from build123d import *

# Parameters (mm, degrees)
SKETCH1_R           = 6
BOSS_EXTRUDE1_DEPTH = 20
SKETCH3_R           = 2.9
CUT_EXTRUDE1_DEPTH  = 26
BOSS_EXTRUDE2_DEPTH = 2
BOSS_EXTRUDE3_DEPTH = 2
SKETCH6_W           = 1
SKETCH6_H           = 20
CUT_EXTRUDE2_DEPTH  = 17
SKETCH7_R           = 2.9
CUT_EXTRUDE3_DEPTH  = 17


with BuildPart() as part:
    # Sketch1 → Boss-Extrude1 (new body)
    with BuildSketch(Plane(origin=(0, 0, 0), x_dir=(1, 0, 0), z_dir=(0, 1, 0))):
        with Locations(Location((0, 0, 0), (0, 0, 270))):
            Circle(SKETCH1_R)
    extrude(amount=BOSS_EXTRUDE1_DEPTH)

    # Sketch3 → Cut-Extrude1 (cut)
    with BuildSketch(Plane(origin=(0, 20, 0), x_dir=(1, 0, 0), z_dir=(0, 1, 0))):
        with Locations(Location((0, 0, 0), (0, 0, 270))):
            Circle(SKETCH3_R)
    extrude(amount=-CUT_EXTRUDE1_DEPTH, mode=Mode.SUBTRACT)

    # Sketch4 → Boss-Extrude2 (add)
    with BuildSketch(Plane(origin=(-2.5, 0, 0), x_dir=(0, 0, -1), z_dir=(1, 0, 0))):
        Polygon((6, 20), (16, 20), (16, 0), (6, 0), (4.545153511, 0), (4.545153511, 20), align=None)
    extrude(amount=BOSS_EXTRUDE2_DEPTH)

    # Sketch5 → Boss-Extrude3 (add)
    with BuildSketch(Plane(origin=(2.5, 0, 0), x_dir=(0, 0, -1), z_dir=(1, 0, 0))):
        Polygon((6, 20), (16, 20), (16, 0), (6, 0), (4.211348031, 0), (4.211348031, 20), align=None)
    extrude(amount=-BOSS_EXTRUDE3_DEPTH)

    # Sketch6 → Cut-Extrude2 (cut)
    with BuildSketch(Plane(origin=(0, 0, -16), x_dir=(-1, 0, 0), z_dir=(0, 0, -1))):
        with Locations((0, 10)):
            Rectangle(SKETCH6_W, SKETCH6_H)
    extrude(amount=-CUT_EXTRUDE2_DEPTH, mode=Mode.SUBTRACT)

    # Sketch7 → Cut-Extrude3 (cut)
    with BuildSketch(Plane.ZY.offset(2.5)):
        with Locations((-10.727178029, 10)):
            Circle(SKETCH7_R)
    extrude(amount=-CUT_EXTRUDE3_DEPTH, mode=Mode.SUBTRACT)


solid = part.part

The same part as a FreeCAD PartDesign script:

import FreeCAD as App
import Part
import Sketcher
from FreeCAD import Vector


def add_polygon(sketch, points):
    """Adds a closed chain of lines whose ends are joined by coincident constraints."""
    first, n = sketch.GeometryCount, len(points)
    for a, b in zip(points, points[1:] + points[:1]):
        sketch.addGeometry(Part.LineSegment(App.Vector(*a, 0), App.Vector(*b, 0)), False)
    for i in range(n):
        sketch.addConstraint(Sketcher.Constraint("Coincident", first + i, 2, first + (i + 1) % n, 1))

doc = App.newDocument("Part")
params = doc.addObject("Spreadsheet::Sheet", "Params")
for row, (alias, value) in enumerate([
    ("sketch1_diameter", "12 mm"),
    ("pad1_length", "20 mm"),
    ("sketch2_diameter", "5.8 mm"),
    ("pocket1_length", "26 mm"),
    ("sketch3_width", "20 mm"),
    ("pad2_length", "2 mm"),
    ("sketch4_width", "20 mm"),
    ("pad3_length", "2 mm"),
    ("sketch5_width", "1 mm"),
    ("sketch5_height", "20 mm"),
    ("pocket2_length", "17 mm"),
    ("sketch6_diameter", "5.8 mm"),
    ("pocket3_length", "17 mm"),
], start=1):
    params.set(f"A{row}", alias)
    params.set(f"B{row}", "=" + value)
    params.setAlias(f"B{row}", alias)

body = doc.addObject("PartDesign::Body", "Body")

sketch1 = body.newObject("Sketcher::SketchObject", "Sketch")
sketch1.AttachmentSupport = (doc.getObject("XZ_Plane"), [""])
sketch1.MapMode = "FlatFace"
sketch1.addGeometry(Part.Circle(Vector(0, 0, 0), Vector(0, 0, 1), 6), False)
sketch1.addConstraint(Sketcher.Constraint("Coincident", 0, 3, -1, 1))
sketch1.addConstraint(Sketcher.Constraint("Diameter", 0, 12.0))
sketch1.setExpression("Constraints[1]", "Params.sketch1_diameter")
pad1 = body.newObject("PartDesign::Pad", "Pad")
pad1.Profile = sketch1
pad1.setExpression("Length", "Params.pad1_length")
pad1.Reversed = True

sketch2 = body.newObject("Sketcher::SketchObject", "Sketch001")
sketch2.AttachmentSupport = (doc.getObject("XZ_Plane"), [""])
sketch2.MapMode = "FlatFace"
sketch2.AttachmentOffset = App.Placement(Vector(0, 0, -20), App.Rotation())
sketch2.addGeometry(Part.Circle(Vector(0, 0, 0), Vector(0, 0, 1), 2.9), False)
sketch2.addConstraint(Sketcher.Constraint("Coincident", 0, 3, -1, 1))
sketch2.addConstraint(Sketcher.Constraint("Diameter", 0, 5.8))
sketch2.setExpression("Constraints[1]", "Params.sketch2_diameter")
pocket1 = body.newObject("PartDesign::Pocket", "Pocket")
pocket1.Profile = sketch2
pocket1.setExpression("Length", "Params.pocket1_length")
pocket1.Reversed = True

sketch3 = body.newObject("Sketcher::SketchObject", "Sketch002")
sketch3.AttachmentSupport = (doc.getObject("YZ_Plane"), [""])
sketch3.MapMode = "FlatFace"
sketch3.AttachmentOffset = App.Placement(Vector(0, 0, -2.5), App.Rotation())
add_polygon(sketch3, [(20, -16), (20, -4.545154), (0, -4.545154), (0, -16)])
sketch3.addConstraint(Sketcher.Constraint("Vertical", 0))
sketch3.addConstraint(Sketcher.Constraint("Horizontal", 1))
sketch3.addConstraint(Sketcher.Constraint("Vertical", 2))
sketch3.addConstraint(Sketcher.Constraint("Horizontal", 3))
sketch3.addConstraint(Sketcher.Constraint("PointOnObject", 1, 2, -2))
sketch3.addConstraint(Sketcher.Constraint("DistanceX", 1, 2, 1, 1, 20.0))
sketch3.addConstraint(Sketcher.Constraint("DistanceY", 2, 2, -1, 1, 16.0))
sketch3.addConstraint(Sketcher.Constraint("DistanceY", 0, 1, 0, 2, 11.454846))
sketch3.setExpression("Constraints[9]", "Params.sketch3_width")
pad2 = body.newObject("PartDesign::Pad", "Pad001")
pad2.Profile = sketch3
pad2.setExpression("Length", "Params.pad2_length")

sketch4 = body.newObject("Sketcher::SketchObject", "Sketch003")
sketch4.AttachmentSupport = (doc.getObject("YZ_Plane"), [""])
sketch4.MapMode = "FlatFace"
sketch4.AttachmentOffset = App.Placement(Vector(0, 0, 2.5), App.Rotation())
add_polygon(sketch4, [(20, -16), (20, -4.211348), (0, -4.211348), (0, -16)])
sketch4.addConstraint(Sketcher.Constraint("Vertical", 0))
sketch4.addConstraint(Sketcher.Constraint("Horizontal", 1))
sketch4.addConstraint(Sketcher.Constraint("Vertical", 2))
sketch4.addConstraint(Sketcher.Constraint("Horizontal", 3))
sketch4.addConstraint(Sketcher.Constraint("PointOnObject", 1, 2, -2))
sketch4.addConstraint(Sketcher.Constraint("DistanceX", 1, 2, 1, 1, 20.0))
sketch4.addConstraint(Sketcher.Constraint("DistanceY", 2, 2, -1, 1, 16.0))
sketch4.addConstraint(Sketcher.Constraint("DistanceY", 0, 1, 0, 2, 11.788652))
sketch4.setExpression("Constraints[9]", "Params.sketch4_width")
pad3 = body.newObject("PartDesign::Pad", "Pad002")
pad3.Profile = sketch4
pad3.setExpression("Length", "Params.pad3_length")
pad3.Reversed = True

sketch5 = body.newObject("Sketcher::SketchObject", "Sketch004")
sketch5.AttachmentSupport = (doc.getObject("XY_Plane"), [""])
sketch5.MapMode = "FlatFace"
sketch5.AttachmentOffset = App.Placement(Vector(0, 0, -16), App.Rotation())
add_polygon(sketch5, [(0.5, 20), (0.5, 0), (-0.5, 0), (-0.5, 20)])
sketch5.addConstraint(Sketcher.Constraint("Vertical", 0))
sketch5.addConstraint(Sketcher.Constraint("Horizontal", 1))
sketch5.addConstraint(Sketcher.Constraint("Vertical", 2))
sketch5.addConstraint(Sketcher.Constraint("Horizontal", 3))
sketch5.addConstraint(Sketcher.Constraint("Symmetric", 0, 2, 1, 2, -1, 1))
sketch5.addConstraint(Sketcher.Constraint("DistanceX", 1, 2, 1, 1, 1.0))
sketch5.addConstraint(Sketcher.Constraint("DistanceY", 0, 2, 0, 1, 20.0))
sketch5.setExpression("Constraints[9]", "Params.sketch5_width")
sketch5.setExpression("Constraints[10]", "Params.sketch5_height")
pocket2 = body.newObject("PartDesign::Pocket", "Pocket001")
pocket2.Profile = sketch5
pocket2.setExpression("Length", "Params.pocket2_length")
pocket2.Reversed = True

sketch6 = body.newObject("Sketcher::SketchObject", "Sketch005")
sketch6.AttachmentSupport = (doc.getObject("YZ_Plane"), [""])
sketch6.MapMode = "FlatFace"
sketch6.AttachmentOffset = App.Placement(Vector(0, 0, -2.5), App.Rotation())
sketch6.addGeometry(Part.Circle(Vector(10, -10.727178, 0), Vector(0, 0, 1), 2.9), False)
sketch6.addConstraint(Sketcher.Constraint("Diameter", 0, 5.8))
sketch6.addConstraint(Sketcher.Constraint("DistanceX", -1, 1, 0, 3, 10.0))
sketch6.addConstraint(Sketcher.Constraint("DistanceY", 0, 3, -1, 1, 10.727178))
sketch6.setExpression("Constraints[0]", "Params.sketch6_diameter")
pocket3 = body.newObject("PartDesign::Pocket", "Pocket002")
pocket3.Profile = sketch6
pocket3.setExpression("Length", "Params.pocket3_length")
pocket3.Reversed = True

doc.recompute()
